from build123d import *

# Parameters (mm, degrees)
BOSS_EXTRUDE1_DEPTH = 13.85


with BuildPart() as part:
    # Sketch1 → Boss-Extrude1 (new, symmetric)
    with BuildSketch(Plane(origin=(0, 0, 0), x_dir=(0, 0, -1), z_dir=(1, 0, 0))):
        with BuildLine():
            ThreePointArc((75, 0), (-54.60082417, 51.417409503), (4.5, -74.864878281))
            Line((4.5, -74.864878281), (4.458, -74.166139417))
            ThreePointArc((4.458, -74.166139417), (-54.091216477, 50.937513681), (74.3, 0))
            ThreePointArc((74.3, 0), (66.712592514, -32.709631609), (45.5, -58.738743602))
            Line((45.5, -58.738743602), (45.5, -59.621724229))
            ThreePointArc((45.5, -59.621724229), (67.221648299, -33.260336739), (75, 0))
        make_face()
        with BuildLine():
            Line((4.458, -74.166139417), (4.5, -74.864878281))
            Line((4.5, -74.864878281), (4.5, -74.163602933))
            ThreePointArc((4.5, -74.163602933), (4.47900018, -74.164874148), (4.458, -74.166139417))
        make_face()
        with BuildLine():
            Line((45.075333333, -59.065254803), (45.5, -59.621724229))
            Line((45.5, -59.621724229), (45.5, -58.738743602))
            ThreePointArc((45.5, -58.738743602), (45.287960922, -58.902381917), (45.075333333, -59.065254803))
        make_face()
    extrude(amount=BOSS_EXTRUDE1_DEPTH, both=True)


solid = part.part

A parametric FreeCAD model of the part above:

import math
import FreeCAD as App
import Part
import Sketcher
from FreeCAD import Vector

doc = App.newDocument("Part")
params = doc.addObject("Spreadsheet::Sheet", "Params")
for row, (alias, value) in enumerate([
    ("sketch1_radius", "75 mm"),
    ("sketch1_radius2", "74.3 mm"),
    ("pad1_length", "27.7 mm"),
], start=1):
    params.set(f"A{row}", alias)
    params.set(f"B{row}", "=" + value)
    params.setAlias(f"B{row}", alias)

body = doc.addObject("PartDesign::Body", "Body")

# Sketch on YZ plane
sketch1 = body.newObject("Sketcher::SketchObject", "Sketch")
sketch1.AttachmentSupport = (doc.getObject("YZ_Plane"), [""])
sketch1.MapMode = "FlatFace"
sketch1.addGeometry(Part.ArcOfCircle(Part.Circle(Vector(0, 0, 0), Vector(0, 0, 1), 75), math.radians(-90), math.radians(183)), False)
sketch1.addGeometry(Part.LineSegment(Vector(-74.865, -4.5, 0), Vector(-74.164, -4.5, 0)), False)
sketch1.addGeometry(Part.ArcOfCircle(Part.Circle(Vector(0.002, 0, 0), Vector(0, 0, 1), 74.302), math.radians(-176.56), math.radians(-176.53)), False)
sketch1.addGeometry(Part.ArcOfCircle(Part.Circle(Vector(0, 0, 0), Vector(0, 0, 1), 74.3), math.radians(-90), math.radians(183)), False)
sketch1.addGeometry(Part.ArcOfCircle(Part.Circle(Vector(0, 0, 0), Vector(0, 0, 1), 74.3), math.radians(-142), math.radians(-90)), False)
sketch1.addGeometry(Part.ArcOfCircle(Part.Circle(Vector(0, 0, 0), Vector(0, 0, 1), 74.3), math.radians(-142.65), math.radians(-142.24)), False)
sketch1.addGeometry(Part.LineSegment(Vector(-59.065, -45.075, 0), Vector(-59.622, -45.5, 0)), False)
sketch1.addGeometry(Part.ArcOfCircle(Part.Circle(Vector(0, 0, 0), Vector(0, 0, 1), 75), math.radians(-143), math.radians(-90)), False)
sketch1.addConstraint(Sketcher.Constraint("Coincident", 0, 2, 1, 1))
sketch1.addConstraint(Sketcher.Constraint("Coincident", 1, 2, 2, 2))
sketch1.addConstraint(Sketcher.Constraint("Tangent", 2, 1, 3, 2))
sketch1.addConstraint(Sketcher.Constraint("Tangent", 3, 1, 4, 2))
sketch1.addConstraint(Sketcher.Constraint("Tangent", 4, 1, 5, 2))
sketch1.addConstraint(Sketcher.Constraint("Coincident", 5, 1, 6, 1))
sketch1.addConstraint(Sketcher.Constraint("Coincident", 6, 2, 7, 1))
sketch1.addConstraint(Sketcher.Constraint("Tangent", 7, 2, 0, 1))
sketch1.addConstraint(Sketcher.Constraint("Horizontal", 1))
sketch1.addConstraint(Sketcher.Constraint("Coincident", 0, 3, -1, 1))
sketch1.addConstraint(Sketcher.Constraint("Coincident", 3, 3, -1, 1))
sketch1.addConstraint(Sketcher.Constraint("Equal", 3, 4))
sketch1.addConstraint(Sketcher.Constraint("Equal", 0, 7))
sketch1.addConstraint(Sketcher.Constraint("PointOnObject", 3, 1, -2))
sketch1.addConstraint(Sketcher.Constraint("PointOnObject", 7, 2, -2))
sketch1.addConstraint(Sketcher.Constraint("Horizontal", 4, 1, 6, 2))
sketch1.addConstraint(Sketcher.Constraint("Radius", 0, 75.0))
sketch1.addConstraint(Sketcher.Constraint("Radius", 3, 74.3))
sketch1.addConstraint(Sketcher.Constraint("DistanceY", 4, 1, 1, 2, 41.0))
sketch1.addConstraint(Sketcher.Constraint("DistanceY", 0, 2, -1, 1, 4.5))
sketch1.addConstraint(Sketcher.Constraint("Radius", 2, 74.301958))
sketch1.addConstraint(Sketcher.Constraint("DistanceY", 2, 1, -1, 1, 4.458))
sketch1.addConstraint(Sketcher.Constraint("Radius", 5, 74.300015))
sketch1.addConstraint(Sketcher.Constraint("DistanceX", 5, 1, 4, 1, 0.326511))
sketch1.setExpression("Constraints[16]", "Params.sketch1_radius")
sketch1.setExpression("Constraints[17]", "Params.sketch1_radius2")
pad1 = body.newObject("PartDesign::Pad", "Pad")
pad1.Profile = sketch1
pad1.setExpression("Length", "Params.pad1_length")
pad1.Midplane = True

doc.recompute()
